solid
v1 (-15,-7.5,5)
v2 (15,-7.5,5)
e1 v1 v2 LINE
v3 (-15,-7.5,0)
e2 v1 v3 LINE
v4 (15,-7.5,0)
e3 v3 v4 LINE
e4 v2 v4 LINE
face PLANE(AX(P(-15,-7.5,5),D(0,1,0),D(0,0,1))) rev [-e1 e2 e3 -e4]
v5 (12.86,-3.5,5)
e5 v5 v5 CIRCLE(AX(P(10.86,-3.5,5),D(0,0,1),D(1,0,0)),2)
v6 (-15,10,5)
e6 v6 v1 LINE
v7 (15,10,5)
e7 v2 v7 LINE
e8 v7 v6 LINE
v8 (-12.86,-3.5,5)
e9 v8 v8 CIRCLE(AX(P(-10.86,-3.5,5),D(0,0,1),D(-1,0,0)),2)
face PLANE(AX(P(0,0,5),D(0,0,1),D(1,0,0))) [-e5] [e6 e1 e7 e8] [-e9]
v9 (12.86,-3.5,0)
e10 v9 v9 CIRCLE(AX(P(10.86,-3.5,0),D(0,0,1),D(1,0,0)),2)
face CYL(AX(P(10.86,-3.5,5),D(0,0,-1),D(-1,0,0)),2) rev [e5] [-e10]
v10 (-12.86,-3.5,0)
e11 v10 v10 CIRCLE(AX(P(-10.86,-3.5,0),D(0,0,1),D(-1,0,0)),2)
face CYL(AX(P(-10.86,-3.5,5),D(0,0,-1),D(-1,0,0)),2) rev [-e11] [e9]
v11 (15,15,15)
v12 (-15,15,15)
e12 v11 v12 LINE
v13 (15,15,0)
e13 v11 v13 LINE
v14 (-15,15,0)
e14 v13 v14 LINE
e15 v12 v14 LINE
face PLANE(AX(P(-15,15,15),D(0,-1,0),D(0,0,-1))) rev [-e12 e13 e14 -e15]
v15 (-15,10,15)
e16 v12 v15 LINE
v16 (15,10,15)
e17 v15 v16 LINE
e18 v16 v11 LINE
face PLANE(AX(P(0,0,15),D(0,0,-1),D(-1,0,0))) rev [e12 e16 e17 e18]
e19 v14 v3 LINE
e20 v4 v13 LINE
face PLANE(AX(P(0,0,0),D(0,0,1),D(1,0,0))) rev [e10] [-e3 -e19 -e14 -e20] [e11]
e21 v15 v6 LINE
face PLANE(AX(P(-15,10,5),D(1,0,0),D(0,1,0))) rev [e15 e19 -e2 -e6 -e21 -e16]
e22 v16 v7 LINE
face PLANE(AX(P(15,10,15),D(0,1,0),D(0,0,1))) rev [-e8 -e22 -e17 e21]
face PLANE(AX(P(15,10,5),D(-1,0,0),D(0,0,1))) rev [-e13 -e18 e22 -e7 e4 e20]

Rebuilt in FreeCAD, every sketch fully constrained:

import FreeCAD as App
import Part
import Sketcher
from FreeCAD import Vector
Q = App.Units.Quantity

doc = App.newDocument("Part")
body = doc.addObject("PartDesign::Body", "Body")

# Sketch on XY plane
sketch1 = body.newObject("Sketcher::SketchObject", "Sketch")
sketch1.AttachmentSupport = (doc.getObject("XY_Plane"), [""])
sketch1.MapMode = "FlatFace"
sketch1.addGeometry(Part.LineSegment(Vector(-15, 10, 0), Vector(-15, -7.5, 0)), False)
sketch1.addGeometry(Part.LineSegment(Vector(-15, -7.5, 0), Vector(15, -7.5, 0)), False)
sketch1.addGeometry(Part.LineSegment(Vector(15, -7.5, 0), Vector(15, 10, 0)), False)
sketch1.addGeometry(Part.LineSegment(Vector(15, 10, 0), Vector(-15, 10, 0)), False)
sketch1.addGeometry(Part.Circle(Vector(-10.86, -3.5, 0), Vector(0, 0, 1), 2), False)
sketch1.addGeometry(Part.Circle(Vector(10.86, -3.5, 0), Vector(0, 0, 1), 2), False)
sketch1.addConstraint(Sketcher.Constraint("Coincident", 0, 2, 1, 1))
sketch1.addConstraint(Sketcher.Constraint("Coincident", 1, 2, 2, 1))
sketch1.addConstraint(Sketcher.Constraint("Coincident", 2, 2, 3, 1))
sketch1.addConstraint(Sketcher.Constraint("Coincident", 3, 2, 0, 1))
sketch1.addConstraint(Sketcher.Constraint("Vertical", 0))
sketch1.addConstraint(Sketcher.Constraint("Horizontal", 1))
sketch1.addConstraint(Sketcher.Constraint("Vertical", 2))
sketch1.addConstraint(Sketcher.Constraint("Horizontal", 3))
sketch1.addConstraint(Sketcher.Constraint("Equal", 4, 5))
sketch1.addConstraint(Sketcher.Constraint("Symmetric", 4, 3, 5, 3, -2))
sketch1.addConstraint(Sketcher.Constraint("Diameter", 4, Q("4 mm")))
sketch1.addConstraint(Sketcher.Constraint("DistanceX", 1, 1, 1, 2, Q("30 mm")))
sketch1.addConstraint(Sketcher.Constraint("DistanceY", 0, 2, 0, 1, Q("17.5 mm")))
sketch1.addConstraint(Sketcher.Constraint("DistanceX", 0, 2, -1, 1, Q("15 mm")))
sketch1.addConstraint(Sketcher.Constraint("DistanceY", -1, 1, 2, 2, Q("10 mm")))
sketch1.addConstraint(Sketcher.Constraint("DistanceY", 0, 2, 4, 3, Q("4 mm")))
sketch1.addConstraint(Sketcher.Constraint("DistanceX", 4, 3, -1, 1, Q("10.86 mm")))
pad1 = body.newObject("PartDesign::Pad", "Pad")
pad1.Profile = sketch1
pad1.Length = 5

# Sketch on XY plane
sketch2 = body.newObject("Sketcher::SketchObject", "Sketch001")
sketch2.AttachmentSupport = (doc.getObject("XY_Plane"), [""])
sketch2.MapMode = "FlatFace"
sketch2.addGeometry(Part.LineSegment(Vector(-15, 15, 0), Vector(-15, 10, 0)), False)
sketch2.addGeometry(Part.LineSegment(Vector(-15, 10, 0), Vector(15, 10, 0)), False)
sketch2.addGeometry(Part.LineSegment(Vector(15, 10, 0), Vector(15, 15, 0)), False)
sketch2.addGeometry(Part.LineSegment(Vector(15, 15, 0), Vector(-15, 15, 0)), False)
sketch2.addConstraint(Sketcher.Constraint("Coincident", 0, 2, 1, 1))
sketch2.addConstraint(Sketcher.Constraint("Coincident", 1, 2, 2, 1))
sketch2.addConstraint(Sketcher.Constraint("Coincident", 2, 2, 3, 1))
sketch2.addConstraint(Sketcher.Constraint("Coincident", 3, 2, 0, 1))
sketch2.addConstraint(Sketcher.Constraint("Vertical", 0))
sketch2.addConstraint(Sketcher.Constraint("Horizontal", 1))
sketch2.addConstraint(Sketcher.Constraint("Vertical", 2))
sketch2.addConstraint(Sketcher.Constraint("Horizontal", 3))
sketch2.addConstraint(Sketcher.Constraint("DistanceX", 1, 1, 1, 2, Q("30 mm")))
sketch2.addConstraint(Sketcher.Constraint("DistanceY", 0, 2, 0, 1, Q("5 mm")))
sketch2.addConstraint(Sketcher.Constraint("DistanceX", 0, 2, -1, 1, Q("15 mm")))
sketch2.addConstraint(Sketcher.Constraint("DistanceY", -1, 1, 0, 2, Q("10 mm")))
pad2 = body.newObject("PartDesign::Pad", "Pad001")
pad2.Profile = sketch2
pad2.Length = 15

doc.recompute()
